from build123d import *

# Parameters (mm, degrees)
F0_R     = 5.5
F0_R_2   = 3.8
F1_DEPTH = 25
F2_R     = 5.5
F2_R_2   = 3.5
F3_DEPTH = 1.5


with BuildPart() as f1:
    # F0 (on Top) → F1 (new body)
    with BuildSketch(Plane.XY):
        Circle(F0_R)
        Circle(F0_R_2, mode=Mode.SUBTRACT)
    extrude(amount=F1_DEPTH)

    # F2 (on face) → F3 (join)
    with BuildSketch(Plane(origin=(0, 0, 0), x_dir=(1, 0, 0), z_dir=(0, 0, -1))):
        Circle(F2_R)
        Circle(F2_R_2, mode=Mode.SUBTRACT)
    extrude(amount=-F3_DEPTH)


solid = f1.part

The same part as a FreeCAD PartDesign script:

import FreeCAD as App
import Part
import Sketcher
from FreeCAD import Vector
Q = App.Units.Quantity

doc = App.newDocument("Part")
params = doc.addObject("Spreadsheet::Sheet", "Params")
for row, (alias, value) in enumerate([
    ("sketch1_diameter", "11 mm"),
    ("sketch1_diameter2", "7.6 mm"),
    ("pad1_length", "25 mm"),
    ("sketch2_diameter", "11 mm"),
    ("sketch2_diameter2", "7 mm"),
    ("pad2_length", "1.5 mm"),
], start=1):
    params.set(f"A{row}", alias)
    params.set(f"B{row}", "=" + value)
    params.setAlias(f"B{row}", alias)

body = doc.addObject("PartDesign::Body", "Body")

# Sketch on XY plane
sketch1 = body.newObject("Sketcher::SketchObject", "Sketch")
sketch1.AttachmentSupport = (doc.getObject("XY_Plane"), [""])
sketch1.MapMode = "FlatFace"
sketch1.addGeometry([
    Part.Circle(Vector(0, 0, 0), Vector(0, 0, 1), 5.5),
    Part.Circle(Vector(0, 0, 0), Vector(0, 0, 1), 3.8),
], False)
sketch1.addConstraint([
    Sketcher.Constraint("Coincident", 0, 3, -1, 1),
    Sketcher.Constraint("Coincident", 1, 3, -1, 1),
    Sketcher.Constraint("Diameter", 0, Q("11 mm")),
    Sketcher.Constraint("Diameter", 1, Q("7.6 mm")),
])
sketch1.setExpression("Constraints[2]", "Params.sketch1_diameter")
sketch1.setExpression("Constraints[3]", "Params.sketch1_diameter2")
pad1 = body.newObject("PartDesign::Pad", "Pad")
pad1.Profile = sketch1
pad1.setExpression("Length", "Params.pad1_length")

# Sketch on XY plane
sketch2 = body.newObject("Sketcher::SketchObject", "Sketch001")
sketch2.AttachmentSupport = (doc.getObject("XY_Plane"), [""])
sketch2.MapMode = "FlatFace"
sketch2.addGeometry([
    Part.Circle(Vector(0, 0, 0), Vector(0, 0, 1), 5.5),
    Part.Circle(Vector(0, 0, 0), Vector(0, 0, 1), 3.5),
], False)
sketch2.addConstraint([
    Sketcher.Constraint("Coincident", 0, 3, -1, 1),
    Sketcher.Constraint("Coincident", 1, 3, -1, 1),
    Sketcher.Constraint("Diameter", 0, Q("11 mm")),
    Sketcher.Constraint("Diameter", 1, Q("7 mm")),
])
sketch2.setExpression("Constraints[2]", "Params.sketch2_diameter")
sketch2.setExpression("Constraints[3]", "Params.sketch2_diameter2")
pad2 = body.newObject("PartDesign::Pad", "Pad001")
pad2.Profile = sketch2
pad2.setExpression("Length", "Params.pad2_length")

doc.recompute()
